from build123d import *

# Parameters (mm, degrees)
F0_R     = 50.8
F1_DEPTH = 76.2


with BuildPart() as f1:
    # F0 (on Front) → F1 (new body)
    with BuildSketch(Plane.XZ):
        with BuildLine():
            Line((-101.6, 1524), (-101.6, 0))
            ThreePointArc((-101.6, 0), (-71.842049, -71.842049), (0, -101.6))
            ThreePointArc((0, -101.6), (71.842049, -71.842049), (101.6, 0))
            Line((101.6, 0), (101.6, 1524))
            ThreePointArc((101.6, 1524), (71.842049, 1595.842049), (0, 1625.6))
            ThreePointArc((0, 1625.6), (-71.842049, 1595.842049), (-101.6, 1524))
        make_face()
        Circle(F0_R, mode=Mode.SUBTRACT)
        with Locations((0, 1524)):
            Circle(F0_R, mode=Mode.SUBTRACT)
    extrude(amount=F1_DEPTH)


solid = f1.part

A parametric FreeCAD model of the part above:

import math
import FreeCAD as App
import Part
import Sketcher
Q = App.Units.Quantity

doc = App.newDocument("Part")
body = doc.addObject("PartDesign::Body", "Body")

# Sketch on XZ plane
sketch1 = body.newObject("Sketcher::SketchObject", "Sketch")
sketch1.AttachmentSupport = (doc.getObject("XZ_Plane"), [""])
sketch1.MapMode = "FlatFace"
sketch1.addGeometry([
    Part.LineSegment(App.Vector(-102, 1524, 0), App.Vector(-102, 0, 0)),  # 0
    Part.ArcOfCircle(Part.Circle(App.Vector(0, 0, 0), App.Vector(0, 0, 1), 102), math.radians(180), math.radians(270)),  # 1
    Part.ArcOfCircle(Part.Circle(App.Vector(0, 0, 0), App.Vector(0, 0, 1), 102), math.radians(-90), math.radians(0)),  # 2
    Part.LineSegment(App.Vector(102, 0, 0), App.Vector(102, 1524, 0)),  # 3
    Part.ArcOfCircle(Part.Circle(App.Vector(0, 1524, 0), App.Vector(0, 0, 1), 102), math.radians(0), math.radians(90)),  # 4
    Part.ArcOfCircle(Part.Circle(App.Vector(0, 1524, 0), App.Vector(0, 0, 1), 102), math.radians(90), math.radians(180)),  # 5
    Part.Circle(App.Vector(0, 0, 0), App.Vector(0, 0, 1), 51),  # 6
    Part.Circle(App.Vector(0, 1524, 0), App.Vector(0, 0, 1), 51),  # 7
], False)
sketch1.addConstraint([
    Sketcher.Constraint("Tangent", 0, 2, 1, 1),
    Sketcher.Constraint("Tangent", 1, 2, 2, 1),
    Sketcher.Constraint("Tangent", 2, 2, 3, 1),
    Sketcher.Constraint("Tangent", 3, 2, 4, 1),
    Sketcher.Constraint("Tangent", 4, 2, 5, 1),
    Sketcher.Constraint("Tangent", 5, 2, 0, 1),
    Sketcher.Constraint("Vertical", 0),
    Sketcher.Constraint("Vertical", 3),
    Sketcher.Constraint("Coincident", 1, 3, -1, 1),
    Sketcher.Constraint("Coincident", 6, 3, -1, 1),
    Sketcher.Constraint("Coincident", 7, 3, 4, 3),
    Sketcher.Constraint("Equal", 1, 2),
    Sketcher.Constraint("Equal", 2, 4),
    Sketcher.Constraint("Equal", 6, 7),
    Sketcher.Constraint("PointOnObject", 1, 2, -2),
    Sketcher.Constraint("PointOnObject", 4, 2, -2),
    Sketcher.Constraint("Diameter", 6, Q("4 in")),
    Sketcher.Constraint("Radius", 1, Q("4 in")),
    Sketcher.Constraint("DistanceY", 0, 2, 0, 1, Q("60 in")),
])
pad1 = body.newObject("PartDesign::Pad", "Pad")
pad1.Profile = sketch1
pad1.Length = Q("3 in")

doc.recompute()
